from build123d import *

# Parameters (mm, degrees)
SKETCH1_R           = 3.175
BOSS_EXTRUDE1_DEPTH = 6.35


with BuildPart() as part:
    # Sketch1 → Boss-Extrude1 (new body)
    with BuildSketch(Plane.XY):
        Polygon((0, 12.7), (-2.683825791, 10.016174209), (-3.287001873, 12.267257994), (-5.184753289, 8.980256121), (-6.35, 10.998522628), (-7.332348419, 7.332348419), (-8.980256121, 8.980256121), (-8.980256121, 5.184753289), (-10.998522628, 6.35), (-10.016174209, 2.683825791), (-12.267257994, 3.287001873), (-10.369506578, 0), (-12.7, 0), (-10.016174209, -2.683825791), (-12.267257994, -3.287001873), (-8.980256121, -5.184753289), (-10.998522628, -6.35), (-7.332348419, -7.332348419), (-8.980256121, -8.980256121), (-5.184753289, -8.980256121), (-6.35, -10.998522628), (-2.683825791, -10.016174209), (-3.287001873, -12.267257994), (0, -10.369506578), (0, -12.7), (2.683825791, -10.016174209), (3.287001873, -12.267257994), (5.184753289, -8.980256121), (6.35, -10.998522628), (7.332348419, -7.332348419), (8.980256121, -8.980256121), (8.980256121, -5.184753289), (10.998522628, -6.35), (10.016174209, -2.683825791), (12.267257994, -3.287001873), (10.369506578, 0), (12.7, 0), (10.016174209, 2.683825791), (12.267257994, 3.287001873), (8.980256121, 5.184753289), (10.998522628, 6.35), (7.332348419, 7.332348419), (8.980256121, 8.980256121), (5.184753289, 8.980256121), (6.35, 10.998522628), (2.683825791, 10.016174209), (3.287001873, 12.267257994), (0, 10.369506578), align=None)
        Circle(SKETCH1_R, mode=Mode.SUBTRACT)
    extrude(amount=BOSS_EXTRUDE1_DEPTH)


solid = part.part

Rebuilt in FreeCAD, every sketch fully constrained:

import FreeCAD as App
import Part
import Sketcher
from FreeCAD import Vector
Q = App.Units.Quantity


def add_polygon(sketch, points):
    """Adds a closed chain of lines whose ends are joined by coincident constraints."""
    first, n = sketch.GeometryCount, len(points)
    for a, b in zip(points, points[1:] + points[:1]):
        sketch.addGeometry(Part.LineSegment(App.Vector(*a, 0), App.Vector(*b, 0)), False)
    for i in range(n):
        sketch.addConstraint(Sketcher.Constraint("Coincident", first + i, 2, first + (i + 1) % n, 1))

doc = App.newDocument("Part")
body = doc.addObject("PartDesign::Body", "Body")

sketch1 = body.newObject("Sketcher::SketchObject", "Sketch")
sketch1.AttachmentSupport = (doc.getObject("XY_Plane"), [""])
sketch1.MapMode = "FlatFace"
add_polygon(sketch1, [(0, 12.7), (-2.7, 10), (-3.3, 12.3), (-5.2, 9), (-6.3, 11), (-7.3, 7.3), (-9, 9), (-9, 5.2), (-11, 6.3), (-10, 2.7), (-12.3, 3.3), (-10.4, 0), (-12.7, 0), (-10, -2.7), (-12.3, -3.3), (-9, -5.2), (-11, -6.3), (-7.3, -7.3), (-9, -9), (-5.2, -9), (-6.3, -11), (-2.7, -10), (-3.3, -12.3), (0, -10.4), (0, -12.7), (2.7, -10), (3.3, -12.3), (5.2, -9), (6.3, -11), (7.3, -7.3), (9, -9), (9, -5.2), (11, -6.3), (10, -2.7), (12.3, -3.3), (10.4, 0), (12.7, 0), (10, 2.7), (12.3, 3.3), (9, 5.2), (11, 6.3), (7.3, 7.3), (9, 9), (5.2, 9), (6.3, 11), (2.7, 10), (3.3, 12.3), (0, 10.4)])
sketch1.addGeometry(Part.Circle(Vector(0, 0, 0), Vector(0, 0, 1), 3.2), False)
sketch1.addConstraint([
    Sketcher.Constraint("Vertical", 6),
    Sketcher.Constraint("Horizontal", 11),
    Sketcher.Constraint("Horizontal", 18),
    Sketcher.Constraint("Vertical", 23),
    Sketcher.Constraint("Vertical", 30),
    Sketcher.Constraint("Horizontal", 35),
    Sketcher.Constraint("Horizontal", 42),
    Sketcher.Constraint("Vertical", 47),
    Sketcher.Constraint("Coincident", 48, 3, -1, 1),
    Sketcher.Constraint("Symmetric", 0, 2, 24, 2, -1, 1),
    Sketcher.Constraint("Symmetric", 1, 2, 25, 2, -1, 1),
    Sketcher.Constraint("Symmetric", 2, 2, 26, 2, -1, 1),
    Sketcher.Constraint("Symmetric", 3, 2, 27, 2, -1, 1),
    Sketcher.Constraint("Symmetric", 4, 2, 28, 2, -1, 1),
    Sketcher.Constraint("Symmetric", 5, 2, 29, 2, -1, 1),
    Sketcher.Constraint("Symmetric", 7, 2, 31, 2, -1, 1),
    Sketcher.Constraint("Symmetric", 8, 2, 32, 2, -1, 1),
    Sketcher.Constraint("Symmetric", 9, 2, 33, 2, -1, 1),
    Sketcher.Constraint("Symmetric", 10, 2, 34, 2, -1, 1),
    Sketcher.Constraint("Symmetric", 12, 2, 36, 2, -1, 1),
    Sketcher.Constraint("Symmetric", 13, 2, 37, 2, -1, 1),
    Sketcher.Constraint("Symmetric", 14, 2, 38, 2, -1, 1),
    Sketcher.Constraint("Symmetric", 15, 2, 39, 2, -1, 1),
    Sketcher.Constraint("Symmetric", 16, 2, 40, 2, -1, 1),
    Sketcher.Constraint("Symmetric", 17, 2, 41, 2, -1, 1),
    Sketcher.Constraint("Symmetric", 19, 2, 43, 2, -1, 1),
    Sketcher.Constraint("Symmetric", 20, 2, 44, 2, -1, 1),
    Sketcher.Constraint("Symmetric", 21, 2, 45, 2, -1, 1),
    Sketcher.Constraint("Symmetric", 22, 2, 46, 2, -1, 1),
    Sketcher.Constraint("Symmetric", 20, 2, 24, 2, -2),
    Sketcher.Constraint("Symmetric", 21, 2, 25, 2, -2),
    Sketcher.Constraint("Symmetric", 18, 2, 26, 2, -2),
    Sketcher.Constraint("Symmetric", 19, 2, 27, 2, -2),
    Sketcher.Constraint("Symmetric", 16, 2, 28, 2, -2),
    Sketcher.Constraint("Symmetric", 17, 2, 29, 2, -2),
    Sketcher.Constraint("Symmetric", 14, 2, 30, 2, -2),
    Sketcher.Constraint("Symmetric", 15, 2, 31, 2, -2),
    Sketcher.Constraint("Symmetric", 12, 2, 32, 2, -2),
    Sketcher.Constraint("Symmetric", 13, 2, 33, 2, -2),
    Sketcher.Constraint("Symmetric", 11, 2, 35, 2, -2),
    Sketcher.Constraint("Symmetric", 23, 2, 47, 2, -1),
    Sketcher.Constraint("Perpendicular", 0, 5),
    Sketcher.Constraint("Perpendicular", 2, 7),
    Sketcher.Constraint("Parallel", 1, 8),
    Sketcher.Constraint("Perpendicular", 4, 9),
    Sketcher.Constraint("Parallel", 3, 10),
    Sketcher.Constraint("Parallel", 5, 12),
    Sketcher.Constraint("Perpendicular", 8, 13),
    Sketcher.Constraint("Parallel", 7, 14),
    Sketcher.Constraint("Perpendicular", 10, 15),
    Sketcher.Constraint("Parallel", 9, 16),
    Sketcher.Constraint("Perpendicular", 12, 17),
    Sketcher.Constraint("Perpendicular", 14, 19),
    Sketcher.Constraint("Parallel", 13, 20),
    Sketcher.Constraint("Parallel", 15, 22),
    Sketcher.Constraint("Perpendicular", 38, 43),
    Sketcher.Constraint("Equal", 42, 6),
    Sketcher.Constraint("Equal", 35, 23),
    Sketcher.Constraint("Equal", 0, 2),
    Sketcher.Constraint("Equal", 1, 3),
    Sketcher.Constraint("Equal", 2, 4),
    Sketcher.Constraint("Equal", 3, 5),
    Sketcher.Constraint("Equal", 4, 8),
    Sketcher.Constraint("Equal", 7, 9),
    Sketcher.Constraint("Diameter", 48, Q("0.25 in")),
    Sketcher.Constraint("DistanceX", 11, 2, -1, 1, Q("0.5 in")),
])
pad1 = body.newObject("PartDesign::Pad", "Pad")
pad1.Profile = sketch1
pad1.Length = Q("0.25 in")

doc.recompute()
